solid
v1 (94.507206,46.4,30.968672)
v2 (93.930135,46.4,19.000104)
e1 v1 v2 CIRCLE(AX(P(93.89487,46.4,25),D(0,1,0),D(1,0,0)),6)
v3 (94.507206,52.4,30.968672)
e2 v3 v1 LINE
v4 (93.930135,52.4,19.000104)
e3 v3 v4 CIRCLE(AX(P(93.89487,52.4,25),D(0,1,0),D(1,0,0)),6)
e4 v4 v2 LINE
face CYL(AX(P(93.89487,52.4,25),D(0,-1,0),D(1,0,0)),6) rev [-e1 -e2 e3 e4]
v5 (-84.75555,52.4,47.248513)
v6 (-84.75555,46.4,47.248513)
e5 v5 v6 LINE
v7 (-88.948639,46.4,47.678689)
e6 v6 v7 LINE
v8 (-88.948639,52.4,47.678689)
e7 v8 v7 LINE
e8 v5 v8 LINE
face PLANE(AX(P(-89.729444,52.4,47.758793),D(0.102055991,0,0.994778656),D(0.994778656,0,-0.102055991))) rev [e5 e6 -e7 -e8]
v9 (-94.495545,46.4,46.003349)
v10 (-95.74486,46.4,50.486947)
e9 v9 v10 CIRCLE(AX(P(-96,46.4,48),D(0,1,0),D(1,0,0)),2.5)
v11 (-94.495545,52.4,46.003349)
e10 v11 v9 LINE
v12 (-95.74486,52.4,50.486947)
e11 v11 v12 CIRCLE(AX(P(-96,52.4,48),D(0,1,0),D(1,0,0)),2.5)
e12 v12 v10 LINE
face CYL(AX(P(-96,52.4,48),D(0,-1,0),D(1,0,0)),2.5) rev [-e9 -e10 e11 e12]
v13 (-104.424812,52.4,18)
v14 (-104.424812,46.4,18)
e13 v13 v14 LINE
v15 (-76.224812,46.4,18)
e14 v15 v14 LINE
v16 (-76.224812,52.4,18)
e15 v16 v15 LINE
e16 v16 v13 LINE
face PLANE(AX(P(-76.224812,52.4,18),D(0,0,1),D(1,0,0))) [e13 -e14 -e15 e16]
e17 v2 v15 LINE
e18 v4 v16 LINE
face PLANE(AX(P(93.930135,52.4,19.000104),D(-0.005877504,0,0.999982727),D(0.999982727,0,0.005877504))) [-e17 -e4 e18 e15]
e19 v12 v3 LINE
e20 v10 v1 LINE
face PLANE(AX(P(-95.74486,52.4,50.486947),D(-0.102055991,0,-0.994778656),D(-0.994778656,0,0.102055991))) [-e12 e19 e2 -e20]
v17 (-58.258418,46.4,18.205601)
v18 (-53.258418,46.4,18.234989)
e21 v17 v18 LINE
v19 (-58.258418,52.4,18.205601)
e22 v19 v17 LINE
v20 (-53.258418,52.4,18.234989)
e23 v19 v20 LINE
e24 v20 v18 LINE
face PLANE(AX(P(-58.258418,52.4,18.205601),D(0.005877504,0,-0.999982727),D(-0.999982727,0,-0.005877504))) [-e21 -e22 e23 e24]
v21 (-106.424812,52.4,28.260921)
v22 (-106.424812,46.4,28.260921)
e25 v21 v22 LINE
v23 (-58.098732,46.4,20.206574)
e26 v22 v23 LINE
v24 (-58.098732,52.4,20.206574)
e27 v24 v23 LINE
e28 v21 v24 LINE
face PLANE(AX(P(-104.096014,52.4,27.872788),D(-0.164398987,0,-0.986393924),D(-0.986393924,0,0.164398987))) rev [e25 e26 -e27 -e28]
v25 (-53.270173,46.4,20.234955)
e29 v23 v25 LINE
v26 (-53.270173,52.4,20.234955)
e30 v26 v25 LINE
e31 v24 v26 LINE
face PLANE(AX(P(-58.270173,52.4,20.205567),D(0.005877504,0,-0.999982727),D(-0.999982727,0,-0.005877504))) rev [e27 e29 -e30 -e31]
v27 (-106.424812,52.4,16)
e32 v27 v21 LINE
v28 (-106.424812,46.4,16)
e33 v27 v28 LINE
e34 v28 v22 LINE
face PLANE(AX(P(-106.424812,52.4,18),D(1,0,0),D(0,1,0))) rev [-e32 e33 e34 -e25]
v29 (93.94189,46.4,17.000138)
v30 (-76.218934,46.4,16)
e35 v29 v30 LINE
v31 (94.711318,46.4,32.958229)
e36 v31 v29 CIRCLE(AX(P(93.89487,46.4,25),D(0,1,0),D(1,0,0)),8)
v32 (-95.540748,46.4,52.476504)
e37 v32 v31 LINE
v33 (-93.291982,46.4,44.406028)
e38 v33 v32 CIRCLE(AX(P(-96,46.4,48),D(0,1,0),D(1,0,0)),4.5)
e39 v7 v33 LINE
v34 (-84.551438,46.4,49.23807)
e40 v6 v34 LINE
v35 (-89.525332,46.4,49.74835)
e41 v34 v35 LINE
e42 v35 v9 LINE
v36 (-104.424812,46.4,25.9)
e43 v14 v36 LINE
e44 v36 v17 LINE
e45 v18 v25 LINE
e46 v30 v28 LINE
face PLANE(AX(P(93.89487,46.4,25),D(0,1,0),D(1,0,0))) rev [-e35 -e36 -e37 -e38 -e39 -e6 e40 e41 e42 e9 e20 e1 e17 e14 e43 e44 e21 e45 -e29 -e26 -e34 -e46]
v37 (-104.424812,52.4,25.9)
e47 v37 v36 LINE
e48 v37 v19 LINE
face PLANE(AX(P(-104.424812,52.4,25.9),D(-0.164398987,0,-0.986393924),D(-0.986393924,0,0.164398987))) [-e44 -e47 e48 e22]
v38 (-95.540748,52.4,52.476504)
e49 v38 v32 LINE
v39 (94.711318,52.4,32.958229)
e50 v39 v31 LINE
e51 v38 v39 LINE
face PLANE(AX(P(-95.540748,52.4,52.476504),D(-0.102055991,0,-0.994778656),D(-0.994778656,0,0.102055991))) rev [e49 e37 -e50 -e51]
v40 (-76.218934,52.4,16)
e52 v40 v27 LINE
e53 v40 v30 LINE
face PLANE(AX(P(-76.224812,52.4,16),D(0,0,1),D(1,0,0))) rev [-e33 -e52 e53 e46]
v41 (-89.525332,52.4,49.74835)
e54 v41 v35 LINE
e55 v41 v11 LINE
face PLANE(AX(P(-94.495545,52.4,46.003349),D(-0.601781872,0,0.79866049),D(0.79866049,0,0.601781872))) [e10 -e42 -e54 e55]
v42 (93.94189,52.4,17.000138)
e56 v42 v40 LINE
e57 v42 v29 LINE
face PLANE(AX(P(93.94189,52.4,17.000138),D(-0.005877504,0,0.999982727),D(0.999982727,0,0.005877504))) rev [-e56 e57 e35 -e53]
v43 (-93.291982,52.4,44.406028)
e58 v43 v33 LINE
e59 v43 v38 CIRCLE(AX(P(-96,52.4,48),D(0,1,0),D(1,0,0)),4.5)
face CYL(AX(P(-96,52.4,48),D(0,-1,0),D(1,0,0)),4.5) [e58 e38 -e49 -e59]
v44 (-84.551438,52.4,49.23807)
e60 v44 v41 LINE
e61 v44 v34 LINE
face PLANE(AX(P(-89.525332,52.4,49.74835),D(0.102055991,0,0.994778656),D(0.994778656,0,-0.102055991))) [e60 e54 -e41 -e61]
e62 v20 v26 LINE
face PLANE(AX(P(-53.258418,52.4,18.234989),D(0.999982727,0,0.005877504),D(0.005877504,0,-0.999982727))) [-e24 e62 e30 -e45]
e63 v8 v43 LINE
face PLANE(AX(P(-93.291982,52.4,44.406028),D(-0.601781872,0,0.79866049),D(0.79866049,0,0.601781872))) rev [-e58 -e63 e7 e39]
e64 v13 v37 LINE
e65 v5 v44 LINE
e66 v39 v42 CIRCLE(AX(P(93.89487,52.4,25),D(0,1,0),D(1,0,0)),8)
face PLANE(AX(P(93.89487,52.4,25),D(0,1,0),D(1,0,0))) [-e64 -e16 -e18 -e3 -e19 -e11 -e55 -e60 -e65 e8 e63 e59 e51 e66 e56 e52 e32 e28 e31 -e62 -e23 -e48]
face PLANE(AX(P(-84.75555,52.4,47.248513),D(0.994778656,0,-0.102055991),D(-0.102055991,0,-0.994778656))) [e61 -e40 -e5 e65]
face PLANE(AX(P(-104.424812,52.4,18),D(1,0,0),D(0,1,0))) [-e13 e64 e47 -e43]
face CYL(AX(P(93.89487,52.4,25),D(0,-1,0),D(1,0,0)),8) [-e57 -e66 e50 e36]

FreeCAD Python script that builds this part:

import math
import FreeCAD as App
import Part
import Sketcher
from FreeCAD import Vector

doc = App.newDocument("Part")
body = doc.addObject("PartDesign::Body", "Body")

sketch1 = doc.addObject("Sketcher::SketchObject", "Sketch")
body.addObject(sketch1)
sketch1.AttachmentSupport = (doc.XZ_Plane, [""])
sketch1.MapMode = "FlatFace"
sketch1.AttachmentOffset = App.Placement(Vector(0, 0, -49.4), App.Rotation())
sketch1.addGeometry(Part.LineSegment(Vector(-89.5, 49.7, 0), Vector(-84.6, 49.2, 0)), False)
sketch1.addGeometry(Part.LineSegment(Vector(-84.6, 49.2, 0), Vector(-84.8, 47.2, 0)), False)
sketch1.addGeometry(Part.LineSegment(Vector(-84.8, 47.2, 0), Vector(-88.9, 47.7, 0)), False)
sketch1.addGeometry(Part.LineSegment(Vector(-88.9, 47.7, 0), Vector(-93.3, 44.4, 0)), False)
sketch1.addGeometry(Part.ArcOfCircle(Part.Circle(Vector(-96, 48, 0), Vector(0, 0, 1), 4.5), math.radians(84), math.radians(307)), False)
sketch1.addGeometry(Part.LineSegment(Vector(-95.5, 52.5, 0), Vector(94.7, 33, 0)), False)
sketch1.addGeometry(Part.ArcOfCircle(Part.Circle(Vector(93.9, 25, 0), Vector(0, 0, 1), 8), math.radians(-90), math.radians(84)), False)
sketch1.addGeometry(Part.LineSegment(Vector(93.9, 17, 0), Vector(-76.2, 16, 0)), False)
sketch1.addGeometry(Part.LineSegment(Vector(-76.2, 16, 0), Vector(-106.4, 16, 0)), False)
sketch1.addGeometry(Part.LineSegment(Vector(-106.4, 16, 0), Vector(-106.4, 28.3, 0)), False)
sketch1.addGeometry(Part.LineSegment(Vector(-106.4, 28.3, 0), Vector(-58.1, 20.2, 0)), False)
sketch1.addGeometry(Part.LineSegment(Vector(-58.1, 20.2, 0), Vector(-53.3, 20.2, 0)), False)
sketch1.addGeometry(Part.LineSegment(Vector(-53.3, 20.2, 0), Vector(-53.3, 18.2, 0)), False)
sketch1.addGeometry(Part.LineSegment(Vector(-53.3, 18.2, 0), Vector(-58.3, 18.2, 0)), False)
sketch1.addGeometry(Part.LineSegment(Vector(-58.3, 18.2, 0), Vector(-104.4, 25.9, 0)), False)
sketch1.addGeometry(Part.LineSegment(Vector(-104.4, 25.9, 0), Vector(-104.4, 18, 0)), False)
sketch1.addGeometry(Part.LineSegment(Vector(-104.4, 18, 0), Vector(-76.2, 18, 0)), False)
sketch1.addGeometry(Part.LineSegment(Vector(-76.2, 18, 0), Vector(93.9, 19, 0)), False)
sketch1.addGeometry(Part.ArcOfCircle(Part.Circle(Vector(93.9, 25, 0), Vector(0, 0, 1), 6), math.radians(-90), math.radians(84)), False)
sketch1.addGeometry(Part.LineSegment(Vector(94.5, 31, 0), Vector(-95.7, 50.5, 0)), False)
sketch1.addGeometry(Part.ArcOfCircle(Part.Circle(Vector(-96, 48, 0), Vector(0, 0, 1), 2.5), math.radians(84), math.radians(307)), False)
sketch1.addGeometry(Part.LineSegment(Vector(-94.5, 46, 0), Vector(-89.5, 49.7, 0)), False)
sketch1.addConstraint(Sketcher.Constraint("Coincident", 0, 2, 1, 1))
sketch1.addConstraint(Sketcher.Constraint("Coincident", 1, 2, 2, 1))
sketch1.addConstraint(Sketcher.Constraint("Coincident", 2, 2, 3, 1))
sketch1.addConstraint(Sketcher.Constraint("Tangent", 3, 2, 4, 2))
sketch1.addConstraint(Sketcher.Constraint("Tangent", 4, 1, 5, 1))
sketch1.addConstraint(Sketcher.Constraint("Tangent", 5, 2, 6, 2))
sketch1.addConstraint(Sketcher.Constraint("Tangent", 6, 1, 7, 1))
sketch1.addConstraint(Sketcher.Constraint("Coincident", 7, 2, 8, 1))
sketch1.addConstraint(Sketcher.Constraint("Coincident", 8, 2, 9, 1))
sketch1.addConstraint(Sketcher.Constraint("Coincident", 9, 2, 10, 1))
sketch1.addConstraint(Sketcher.Constraint("Coincident", 10, 2, 11, 1))
sketch1.addConstraint(Sketcher.Constraint("Coincident", 11, 2, 12, 1))
sketch1.addConstraint(Sketcher.Constraint("Coincident", 12, 2, 13, 1))
sketch1.addConstraint(Sketcher.Constraint("Coincident", 13, 2, 14, 1))
sketch1.addConstraint(Sketcher.Constraint("Coincident", 14, 2, 15, 1))
sketch1.addConstraint(Sketcher.Constraint("Coincident", 15, 2, 16, 1))
sketch1.addConstraint(Sketcher.Constraint("Coincident", 16, 2, 17, 1))
sketch1.addConstraint(Sketcher.Constraint("Tangent", 17, 2, 18, 1))
sketch1.addConstraint(Sketcher.Constraint("Tangent", 18, 2, 19, 1))
sketch1.addConstraint(Sketcher.Constraint("Tangent", 19, 2, 20, 1))
sketch1.addConstraint(Sketcher.Constraint("Tangent", 20, 2, 21, 1))
sketch1.addConstraint(Sketcher.Constraint("Coincident", 21, 2, 0, 1))
sketch1.addConstraint(Sketcher.Constraint("Horizontal", 8))
sketch1.addConstraint(Sketcher.Constraint("Vertical", 9))
sketch1.addConstraint(Sketcher.Constraint("Vertical", 15))
sketch1.addConstraint(Sketcher.Constraint("Horizontal", 16))
sketch1.addConstraint(Sketcher.Constraint("Coincident", 18, 3, 6, 3))
sketch1.addConstraint(Sketcher.Constraint("Coincident", 20, 3, 4, 3))
sketch1.addConstraint(Sketcher.Constraint("Perpendicular", 0, 1))
sketch1.addConstraint(Sketcher.Constraint("Perpendicular", 1, 2))
sketch1.addConstraint(Sketcher.Constraint("Parallel", 2, 5))
sketch1.addConstraint(Sketcher.Constraint("Parallel", 7, 11))
sketch1.addConstraint(Sketcher.Constraint("Perpendicular", 11, 12))
sketch1.addConstraint(Sketcher.Constraint("Perpendicular", 12, 13))
sketch1.addConstraint(Sketcher.Constraint("Parallel", 10, 14))
sketch1.addConstraint(Sketcher.Constraint("Parallel", 13, 17))
sketch1.addConstraint(Sketcher.Constraint("Parallel", 5, 19))
sketch1.addConstraint(Sketcher.Constraint("Parallel", 3, 21))
sketch1.addConstraint(Sketcher.Constraint("Equal", 1, 12))
sketch1.addConstraint(Sketcher.Constraint("Radius", 6, 8.0))
sketch1.addConstraint(Sketcher.Constraint("Radius", 18, 6.0))
sketch1.addConstraint(Sketcher.Constraint("Radius", 4, 4.5))
sketch1.addConstraint(Sketcher.Constraint("Distance", 0, 5.0))
sketch1.addConstraint(Sketcher.Constraint("Distance", 1, 2.0))
sketch1.addConstraint(Sketcher.Constraint("DistanceX", 16, 1, 16, 2, 28.2))
sketch1.addConstraint(Sketcher.Constraint("DistanceY", 15, 2, 15, 1, 7.9))
sketch1.addConstraint(Sketcher.Constraint("DistanceX", 4, 3, -1, 1, 96.0))
sketch1.addConstraint(Sketcher.Constraint("DistanceY", -1, 1, 4, 3, 48.0))
sketch1.addConstraint(Sketcher.Constraint("DistanceY", -1, 1, 6, 3, 25.0))
sketch1.addConstraint(Sketcher.Constraint("DistanceY", -1, 1, 7, 2, 16.0))
sketch1.addConstraint(Sketcher.Constraint("DistanceY", -1, 1, 15, 2, 18.0))
sketch1.addConstraint(Sketcher.Constraint("DistanceX", 13, 2, 12, 2, 5.0))
sketch1.addConstraint(Sketcher.Constraint("DistanceX", 9, 2, 14, 2, 2.0))
sketch1.addConstraint(Sketcher.Constraint("DistanceY", 20, 2, 21, 2, 3.745001))
sketch1.addConstraint(Sketcher.Constraint("Distance", 14, 46.803201))
sketch1.addConstraint(Sketcher.Constraint("DistanceY", 9, 1, 9, 2, 12.260921))
sketch1.addConstraint(Sketcher.Constraint("DistanceY", -1, 1, 13, 2, 18.205601))
sketch1.addConstraint(Sketcher.Constraint("DistanceX", 2, 2, 0, 2, 4.397201))
sketch1.addConstraint(Sketcher.Constraint("Distance", 5, 191.250651))
sketch1.addConstraint(Sketcher.Constraint("DistanceX", 8, 2, -1, 1, 106.424812))
pad1 = doc.addObject("PartDesign::Pad", "Pad")
body.addObject(pad1)
pad1.Profile = sketch1
pad1.Length = 6
pad1.Midplane = True

doc.recompute()
